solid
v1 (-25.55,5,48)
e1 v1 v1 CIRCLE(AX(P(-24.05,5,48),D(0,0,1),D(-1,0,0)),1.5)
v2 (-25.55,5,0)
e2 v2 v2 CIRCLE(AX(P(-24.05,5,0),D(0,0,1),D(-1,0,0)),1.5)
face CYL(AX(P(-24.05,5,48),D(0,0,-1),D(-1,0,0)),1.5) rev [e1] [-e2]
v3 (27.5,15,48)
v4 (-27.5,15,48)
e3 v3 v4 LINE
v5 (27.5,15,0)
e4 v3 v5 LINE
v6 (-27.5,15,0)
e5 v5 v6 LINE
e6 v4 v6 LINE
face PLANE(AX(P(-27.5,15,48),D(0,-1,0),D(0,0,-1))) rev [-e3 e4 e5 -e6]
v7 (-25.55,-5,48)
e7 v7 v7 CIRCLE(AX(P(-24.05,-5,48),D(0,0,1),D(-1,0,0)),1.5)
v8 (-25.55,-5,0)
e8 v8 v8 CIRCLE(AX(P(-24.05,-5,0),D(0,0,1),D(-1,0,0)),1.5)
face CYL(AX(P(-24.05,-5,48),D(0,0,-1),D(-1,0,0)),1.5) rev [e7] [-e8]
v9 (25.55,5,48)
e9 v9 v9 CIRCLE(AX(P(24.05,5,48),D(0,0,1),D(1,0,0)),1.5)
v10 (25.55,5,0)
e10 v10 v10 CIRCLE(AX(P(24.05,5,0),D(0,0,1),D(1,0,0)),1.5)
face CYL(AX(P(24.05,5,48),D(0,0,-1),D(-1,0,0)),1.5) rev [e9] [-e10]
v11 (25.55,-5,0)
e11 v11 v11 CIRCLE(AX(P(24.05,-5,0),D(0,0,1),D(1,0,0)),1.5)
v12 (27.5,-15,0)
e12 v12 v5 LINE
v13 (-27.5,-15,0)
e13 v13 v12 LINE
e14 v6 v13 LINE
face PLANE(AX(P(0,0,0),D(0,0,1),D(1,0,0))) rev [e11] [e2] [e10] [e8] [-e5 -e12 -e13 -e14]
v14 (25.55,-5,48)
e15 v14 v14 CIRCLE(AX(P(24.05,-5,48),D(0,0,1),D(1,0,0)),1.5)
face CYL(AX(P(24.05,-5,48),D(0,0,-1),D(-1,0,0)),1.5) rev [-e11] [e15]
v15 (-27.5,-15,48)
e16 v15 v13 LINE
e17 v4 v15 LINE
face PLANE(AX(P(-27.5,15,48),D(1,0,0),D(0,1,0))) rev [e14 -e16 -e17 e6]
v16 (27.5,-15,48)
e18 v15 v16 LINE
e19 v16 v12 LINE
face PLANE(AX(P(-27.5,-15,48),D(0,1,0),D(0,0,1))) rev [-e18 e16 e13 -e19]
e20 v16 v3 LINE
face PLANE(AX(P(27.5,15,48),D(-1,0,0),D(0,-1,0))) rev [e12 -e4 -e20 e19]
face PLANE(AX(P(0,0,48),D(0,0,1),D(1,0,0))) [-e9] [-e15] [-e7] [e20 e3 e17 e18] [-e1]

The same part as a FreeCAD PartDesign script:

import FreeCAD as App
import Part
import Sketcher
from FreeCAD import Vector


def add_polygon(sketch, points):
    """Adds a closed chain of lines whose ends are joined by coincident constraints."""
    first, n = sketch.GeometryCount, len(points)
    for a, b in zip(points, points[1:] + points[:1]):
        sketch.addGeometry(Part.LineSegment(App.Vector(*a, 0), App.Vector(*b, 0)), False)
    for i in range(n):
        sketch.addConstraint(Sketcher.Constraint("Coincident", first + i, 2, first + (i + 1) % n, 1))

doc = App.newDocument("Part")
body = doc.addObject("PartDesign::Body", "Body")

# Sketch on XY plane
sketch1 = body.newObject("Sketcher::SketchObject", "Sketch")
sketch1.AttachmentSupport = (doc.getObject("XY_Plane"), [""])
sketch1.MapMode = "FlatFace"
add_polygon(sketch1, [(-27.5, 15), (-27.5, -15), (27.5, -15), (27.5, 15)])  # lines 0-3
sketch1.addGeometry(Part.Circle(Vector(-24.05, -5, 0), Vector(0, 0, 1), 1.5), False)  # 4
sketch1.addGeometry(Part.Circle(Vector(24.05, -5, 0), Vector(0, 0, 1), 1.5), False)  # 5
sketch1.addGeometry(Part.Circle(Vector(-24.05, 5, 0), Vector(0, 0, 1), 1.5), False)  # 6
sketch1.addGeometry(Part.Circle(Vector(24.05, 5, 0), Vector(0, 0, 1), 1.5), False)  # 7
sketch1.addConstraint([
    Sketcher.Constraint("Vertical", 0),
    Sketcher.Constraint("Horizontal", 1),
    Sketcher.Constraint("Vertical", 2),
    Sketcher.Constraint("Horizontal", 3),
    Sketcher.Constraint("Equal", 4, 5),
    Sketcher.Constraint("Equal", 5, 6),
    Sketcher.Constraint("Equal", 6, 7),
    Sketcher.Constraint("Symmetric", 5, 3, 6, 3, -1, 1),
    Sketcher.Constraint("Symmetric", 4, 3, 7, 3, -1, 1),
    Sketcher.Constraint("Symmetric", 0, 2, 2, 2, -1, 1),
    Sketcher.Constraint("Symmetric", 4, 3, 5, 3, -2),
    Sketcher.Constraint("Diameter", 4, 3.0),
    Sketcher.Constraint("DistanceX", 1, 1, 1, 2, 55.0),
    Sketcher.Constraint("DistanceY", 0, 2, 0, 1, 30.0),
    Sketcher.Constraint("DistanceY", 4, 3, -1, 1, 5.0),
    Sketcher.Constraint("DistanceX", 4, 3, 5, 3, 48.1),
])
pad1 = body.newObject("PartDesign::Pad", "Pad")
pad1.Profile = sketch1
pad1.Length = 48

doc.recompute()
